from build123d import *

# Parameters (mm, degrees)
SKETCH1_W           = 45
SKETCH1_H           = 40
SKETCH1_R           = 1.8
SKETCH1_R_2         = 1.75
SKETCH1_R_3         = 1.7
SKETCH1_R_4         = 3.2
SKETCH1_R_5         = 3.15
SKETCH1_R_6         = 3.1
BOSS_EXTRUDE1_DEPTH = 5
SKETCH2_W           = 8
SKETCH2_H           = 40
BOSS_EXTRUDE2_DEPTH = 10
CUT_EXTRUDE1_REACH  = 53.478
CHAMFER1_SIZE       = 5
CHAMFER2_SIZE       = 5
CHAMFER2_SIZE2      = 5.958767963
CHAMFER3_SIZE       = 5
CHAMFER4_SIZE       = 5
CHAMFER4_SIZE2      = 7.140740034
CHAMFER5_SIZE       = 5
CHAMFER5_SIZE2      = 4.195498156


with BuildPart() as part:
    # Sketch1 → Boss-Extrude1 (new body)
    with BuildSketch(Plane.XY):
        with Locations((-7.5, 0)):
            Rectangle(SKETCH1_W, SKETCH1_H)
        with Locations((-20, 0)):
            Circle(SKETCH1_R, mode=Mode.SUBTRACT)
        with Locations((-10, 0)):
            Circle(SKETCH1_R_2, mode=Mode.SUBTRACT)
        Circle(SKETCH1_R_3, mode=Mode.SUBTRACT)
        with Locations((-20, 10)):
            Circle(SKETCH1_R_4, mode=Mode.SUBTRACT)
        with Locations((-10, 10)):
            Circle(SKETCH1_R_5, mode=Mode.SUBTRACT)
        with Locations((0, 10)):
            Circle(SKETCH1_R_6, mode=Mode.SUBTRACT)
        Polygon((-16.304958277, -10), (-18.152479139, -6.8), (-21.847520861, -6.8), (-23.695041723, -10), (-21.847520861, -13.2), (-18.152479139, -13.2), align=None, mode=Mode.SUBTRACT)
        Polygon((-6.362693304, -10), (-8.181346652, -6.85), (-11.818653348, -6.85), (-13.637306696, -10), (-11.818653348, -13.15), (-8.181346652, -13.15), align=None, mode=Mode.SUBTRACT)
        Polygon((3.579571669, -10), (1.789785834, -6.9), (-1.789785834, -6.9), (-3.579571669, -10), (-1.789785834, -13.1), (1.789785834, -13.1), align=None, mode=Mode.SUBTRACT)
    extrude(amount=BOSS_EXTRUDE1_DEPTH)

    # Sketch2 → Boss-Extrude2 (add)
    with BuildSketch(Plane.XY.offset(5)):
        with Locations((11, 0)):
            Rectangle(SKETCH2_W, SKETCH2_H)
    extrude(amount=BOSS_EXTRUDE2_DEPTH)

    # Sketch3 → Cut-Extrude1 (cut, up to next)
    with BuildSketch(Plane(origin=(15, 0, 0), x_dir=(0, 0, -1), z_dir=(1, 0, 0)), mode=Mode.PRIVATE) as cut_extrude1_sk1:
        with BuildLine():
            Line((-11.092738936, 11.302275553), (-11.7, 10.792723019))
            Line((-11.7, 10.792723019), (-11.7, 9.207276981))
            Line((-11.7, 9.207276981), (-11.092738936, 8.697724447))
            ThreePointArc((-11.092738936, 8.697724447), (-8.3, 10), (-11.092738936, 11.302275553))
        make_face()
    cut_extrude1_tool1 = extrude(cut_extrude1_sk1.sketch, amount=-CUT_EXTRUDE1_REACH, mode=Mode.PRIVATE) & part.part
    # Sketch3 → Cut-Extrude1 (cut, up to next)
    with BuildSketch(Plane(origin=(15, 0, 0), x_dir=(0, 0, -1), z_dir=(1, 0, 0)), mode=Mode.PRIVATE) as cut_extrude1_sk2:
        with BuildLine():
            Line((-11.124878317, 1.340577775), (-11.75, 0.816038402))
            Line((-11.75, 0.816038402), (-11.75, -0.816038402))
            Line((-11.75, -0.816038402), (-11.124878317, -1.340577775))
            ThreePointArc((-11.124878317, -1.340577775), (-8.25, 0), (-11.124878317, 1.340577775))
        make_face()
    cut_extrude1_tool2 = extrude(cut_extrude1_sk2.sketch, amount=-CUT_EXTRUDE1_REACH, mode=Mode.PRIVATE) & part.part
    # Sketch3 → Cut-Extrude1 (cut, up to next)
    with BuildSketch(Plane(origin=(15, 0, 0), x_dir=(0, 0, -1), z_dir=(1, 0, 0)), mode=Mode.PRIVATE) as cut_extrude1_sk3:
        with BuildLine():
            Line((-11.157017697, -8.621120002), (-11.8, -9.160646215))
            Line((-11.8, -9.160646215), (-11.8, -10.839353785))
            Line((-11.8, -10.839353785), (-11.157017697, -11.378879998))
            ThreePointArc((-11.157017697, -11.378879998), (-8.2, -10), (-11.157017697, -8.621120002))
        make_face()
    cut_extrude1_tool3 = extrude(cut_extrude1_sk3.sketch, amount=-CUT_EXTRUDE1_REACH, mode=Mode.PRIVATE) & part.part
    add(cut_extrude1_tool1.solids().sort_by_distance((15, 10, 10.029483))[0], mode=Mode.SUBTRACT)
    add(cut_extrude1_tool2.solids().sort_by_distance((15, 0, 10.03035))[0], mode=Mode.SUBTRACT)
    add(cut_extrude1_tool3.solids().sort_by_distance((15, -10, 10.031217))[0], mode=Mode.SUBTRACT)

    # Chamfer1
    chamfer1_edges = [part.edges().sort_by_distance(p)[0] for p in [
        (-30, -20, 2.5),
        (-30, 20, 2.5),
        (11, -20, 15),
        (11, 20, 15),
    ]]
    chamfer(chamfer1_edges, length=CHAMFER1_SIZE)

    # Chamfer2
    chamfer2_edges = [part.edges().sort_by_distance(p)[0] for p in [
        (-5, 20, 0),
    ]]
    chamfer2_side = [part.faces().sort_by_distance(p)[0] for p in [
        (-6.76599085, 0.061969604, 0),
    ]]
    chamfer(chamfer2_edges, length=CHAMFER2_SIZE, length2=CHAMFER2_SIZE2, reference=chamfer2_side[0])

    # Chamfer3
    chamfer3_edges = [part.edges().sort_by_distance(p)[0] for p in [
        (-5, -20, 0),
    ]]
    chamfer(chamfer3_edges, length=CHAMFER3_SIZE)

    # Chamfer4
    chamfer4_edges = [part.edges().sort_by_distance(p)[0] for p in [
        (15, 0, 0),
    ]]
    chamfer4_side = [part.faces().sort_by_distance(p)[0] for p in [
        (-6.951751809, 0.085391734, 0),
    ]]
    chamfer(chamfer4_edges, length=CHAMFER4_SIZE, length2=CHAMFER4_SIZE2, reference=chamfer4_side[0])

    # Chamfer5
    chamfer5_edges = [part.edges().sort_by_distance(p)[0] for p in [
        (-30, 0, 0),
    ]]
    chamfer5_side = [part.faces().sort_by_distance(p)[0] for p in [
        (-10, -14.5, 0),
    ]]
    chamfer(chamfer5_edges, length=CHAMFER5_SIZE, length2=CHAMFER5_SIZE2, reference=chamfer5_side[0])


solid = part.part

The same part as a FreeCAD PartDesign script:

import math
import FreeCAD as App
import Part
import Sketcher
from FreeCAD import Vector
Q = App.Units.Quantity


def edges_at(feature, points):
    """Names of the edges that pass closest to the given points."""
    edges = feature.Shape.Edges
    near = lambda p: min(range(len(edges)), key=lambda i: edges[i].distToShape(Part.Vertex(*p))[0])
    return sorted({f"Edge{near(p) + 1}" for p in points})

doc = App.newDocument("Part")
params = doc.addObject("Spreadsheet::Sheet", "Params")
for row, (alias, value) in enumerate([
    ("sketch1_diameter", "3.6 mm"),
    ("sketch1_diameter2", "6.4 mm"),
    ("sketch1_diameter3", "3.5 mm"),
    ("sketch1_diameter4", "3.4 mm"),
    ("sketch1_diameter5", "6.3 mm"),
    ("pad1_length", "5 mm"),
    ("sketch2_width", "8 mm"),
    ("sketch2_height", "40 mm"),
    ("pad2_length", "10 mm"),
    ("sketch3_radius", "1.7 mm"),
    ("sketch4_radius", "1.75 mm"),
    ("sketch5_radius", "1.8 mm"),
    ("chamfer_size", "5 mm"),
    ("chamfer2_size", "5 mm"),
    ("chamfer2_size2", "5.958768 mm"),
    ("chamfer3_size", "5 mm"),
    ("chamfer4_size", "5 mm"),
    ("chamfer4_size2", "7.14074 mm"),
    ("chamfer5_size", "5 mm"),
    ("chamfer5_size2", "4.195498 mm"),
], start=1):
    params.set(f"A{row}", alias)
    params.set(f"B{row}", "=" + value)
    params.setAlias(f"B{row}", alias)

body = doc.addObject("PartDesign::Body", "Body")

# Sketch on XY plane
sketch1 = doc.addObject("Sketcher::SketchObject", "Sketch")
body.addObject(sketch1)
sketch1.AttachmentSupport = (doc.XY_Plane, [""])
sketch1.MapMode = "FlatFace"
sketch1.addGeometry([
    Part.LineSegment(Vector(-30, 20, 0), Vector(-30, -20, 0)),  # 0
    Part.LineSegment(Vector(-30, -20, 0), Vector(15, -20, 0)),  # 1
    Part.LineSegment(Vector(15, -20, 0), Vector(15, 20, 0)),  # 2
    Part.LineSegment(Vector(15, 20, 0), Vector(-30, 20, 0)),  # 3
    Part.LineSegment(Vector(-18.2, -6.8, 0), Vector(-16.3, -10, 0)),  # 4
    Part.LineSegment(Vector(-16.3, -10, 0), Vector(-18.2, -13.2, 0)),  # 5
    Part.LineSegment(Vector(-18.2, -13.2, 0), Vector(-21.8, -13.2, 0)),  # 6
    Part.LineSegment(Vector(-21.8, -13.2, 0), Vector(-23.7, -10, 0)),  # 7
    Part.LineSegment(Vector(-23.7, -10, 0), Vector(-21.8, -6.8, 0)),  # 8
    Part.LineSegment(Vector(-21.8, -6.8, 0), Vector(-18.2, -6.8, 0)),  # 9
    Part.LineSegment(Vector(-8.2, -6.8, 0), Vector(-6.4, -10, 0)),  # 10
    Part.LineSegment(Vector(-6.4, -10, 0), Vector(-8.2, -13.2, 0)),  # 11
    Part.LineSegment(Vector(-8.2, -13.2, 0), Vector(-11.8, -13.2, 0)),  # 12
    Part.LineSegment(Vector(-11.8, -13.2, 0), Vector(-13.6, -10, 0)),  # 13
    Part.LineSegment(Vector(-13.6, -10, 0), Vector(-11.8, -6.8, 0)),  # 14
    Part.LineSegment(Vector(-11.8, -6.8, 0), Vector(-8.2, -6.8, 0)),  # 15
    Part.LineSegment(Vector(1.8, -6.9, 0), Vector(3.6, -10, 0)),  # 16
    Part.LineSegment(Vector(3.6, -10, 0), Vector(1.8, -13.1, 0)),  # 17
    Part.LineSegment(Vector(1.8, -13.1, 0), Vector(-1.8, -13.1, 0)),  # 18
    Part.LineSegment(Vector(-1.8, -13.1, 0), Vector(-3.6, -10, 0)),  # 19
    Part.LineSegment(Vector(-3.6, -10, 0), Vector(-1.8, -6.9, 0)),  # 20
    Part.LineSegment(Vector(-1.8, -6.9, 0), Vector(1.8, -6.9, 0)),  # 21
    Part.Circle(Vector(-20, 0, 0), Vector(0, 0, 1), 1.8),  # 22
    Part.Circle(Vector(-20, 10, 0), Vector(0, 0, 1), 3.2),  # 23
    Part.Circle(Vector(-10, 0, 0), Vector(0, 0, 1), 1.8),  # 24
    Part.Circle(Vector(0, 0, 0), Vector(0, 0, 1), 1.7),  # 25
    Part.Circle(Vector(-10, 10, 0), Vector(0, 0, 1), 3.1),  # 26
    Part.Circle(Vector(0, 10, 0), Vector(0, 0, 1), 3.1),  # 27
], False)
sketch1.addConstraint([
    Sketcher.Constraint("Coincident", 0, 2, 1, 1),
    Sketcher.Constraint("Coincident", 1, 2, 2, 1),
    Sketcher.Constraint("Coincident", 2, 2, 3, 1),
    Sketcher.Constraint("Coincident", 3, 2, 0, 1),
    Sketcher.Constraint("Coincident", 4, 2, 5, 1),
    Sketcher.Constraint("Coincident", 5, 2, 6, 1),
    Sketcher.Constraint("Coincident", 6, 2, 7, 1),
    Sketcher.Constraint("Coincident", 7, 2, 8, 1),
    Sketcher.Constraint("Coincident", 8, 2, 9, 1),
    Sketcher.Constraint("Coincident", 9, 2, 4, 1),
    Sketcher.Constraint("Coincident", 10, 2, 11, 1),
    Sketcher.Constraint("Coincident", 11, 2, 12, 1),
    Sketcher.Constraint("Coincident", 12, 2, 13, 1),
    Sketcher.Constraint("Coincident", 13, 2, 14, 1),
    Sketcher.Constraint("Coincident", 14, 2, 15, 1),
    Sketcher.Constraint("Coincident", 15, 2, 10, 1),
    Sketcher.Constraint("Coincident", 16, 2, 17, 1),
    Sketcher.Constraint("Coincident", 17, 2, 18, 1),
    Sketcher.Constraint("Coincident", 18, 2, 19, 1),
    Sketcher.Constraint("Coincident", 19, 2, 20, 1),
    Sketcher.Constraint("Coincident", 20, 2, 21, 1),
    Sketcher.Constraint("Coincident", 21, 2, 16, 1),
    Sketcher.Constraint("Vertical", 0),
    Sketcher.Constraint("Horizontal", 1),
    Sketcher.Constraint("Vertical", 2),
    Sketcher.Constraint("Horizontal", 3),
    Sketcher.Constraint("Horizontal", 6),
    Sketcher.Constraint("Horizontal", 9),
    Sketcher.Constraint("Horizontal", 12),
    Sketcher.Constraint("Horizontal", 15),
    Sketcher.Constraint("Horizontal", 18),
    Sketcher.Constraint("Horizontal", 21),
    Sketcher.Constraint("Coincident", 25, 3, -1, 1),
    Sketcher.Constraint("Symmetric", 16, 2, 19, 2, -2),
    Sketcher.Constraint("PointOnObject", 22, 3, -1),
    Sketcher.Constraint("PointOnObject", 24, 3, -1),
    Sketcher.Constraint("PointOnObject", 27, 3, -2),
    Sketcher.Constraint("Parallel", 4, 7),
    Sketcher.Constraint("Parallel", 5, 8),
    Sketcher.Constraint("Parallel", 7, 10),
    Sketcher.Constraint("Parallel", 8, 11),
    Sketcher.Constraint("Parallel", 10, 13),
    Sketcher.Constraint("Parallel", 11, 14),
    Sketcher.Constraint("Parallel", 13, 16),
    Sketcher.Constraint("Parallel", 14, 17),
    Sketcher.Constraint("Parallel", 16, 19),
    Sketcher.Constraint("Parallel", 17, 20),
    Sketcher.Constraint("Horizontal", 23, 3, 26, 3),
    Sketcher.Constraint("Horizontal", 26, 3, 27, 3),
    Sketcher.Constraint("Horizontal", 4, 2, 7, 2),
    Sketcher.Constraint("Horizontal", 7, 2, 10, 2),
    Sketcher.Constraint("Horizontal", 10, 2, 13, 2),
    Sketcher.Constraint("Horizontal", 13, 2, 16, 2),
    Sketcher.Constraint("Vertical", 22, 3, 23, 3),
    Sketcher.Constraint("Vertical", 24, 3, 26, 3),
    Sketcher.Constraint("Vertical", 6, 2, 8, 2),
    Sketcher.Constraint("Vertical", 5, 2, 9, 2),
    Sketcher.Constraint("Vertical", 12, 2, 14, 2),
    Sketcher.Constraint("Vertical", 18, 2, 20, 2),
    Sketcher.Constraint("Diameter", 22, Q("3.6 mm")),
    Sketcher.Constraint("Diameter", 23, Q("6.4 mm")),
    Sketcher.Constraint("Diameter", 24, Q("3.5 mm")),
    Sketcher.Constraint("Diameter", 25, Q("3.4 mm")),
    Sketcher.Constraint("Diameter", 26, Q("6.3 mm")),
    Sketcher.Constraint("Diameter", 27, Q("6.2 mm")),
    Sketcher.Constraint("DistanceX", 1, 1, 1, 2, Q("45 mm")),
    Sketcher.Constraint("DistanceY", 0, 2, 0, 1, Q("40 mm")),
    Sketcher.Constraint("Angle", 4, Q("-60 deg")),
    Sketcher.Constraint("DistanceX", 22, 3, -1, 1, Q("20 mm")),
    Sketcher.Constraint("DistanceY", -1, 1, 23, 3, Q("10 mm")),
    Sketcher.Constraint("DistanceX", 24, 3, -1, 1, Q("10 mm")),
    Sketcher.Constraint("DistanceX", 0, 2, -1, 1, Q("30 mm")),
    Sketcher.Constraint("DistanceY", 0, 2, -1, 1, Q("20 mm")),
    Sketcher.Constraint("DistanceY", 4, 2, -1, 1, Q("10 mm")),
    Sketcher.Constraint("DistanceY", 5, 2, -1, 1, Q("13.2 mm")),
    Sketcher.Constraint("DistanceY", 17, 2, -1, 1, Q("13.1 mm")),
    Sketcher.Constraint("DistanceY", 12, 2, 14, 2, Q("6.3 mm")),
    Sketcher.Constraint("DistanceX", 6, 2, 6, 1, Q("3.695042 mm")),
    Sketcher.Constraint("DistanceX", 18, 2, 18, 1, Q("3.579572 mm")),
    Sketcher.Constraint("DistanceX", 12, 2, 12, 1, Q("3.637307 mm")),
    Sketcher.Constraint("DistanceX", 4, 2, -1, 1, Q("16.304958 mm")),
    Sketcher.Constraint("DistanceX", 4, 2, 11, 2, Q("8.123612 mm")),
])
sketch1.setExpression("Constraints[59]", "Params.sketch1_diameter")
sketch1.setExpression("Constraints[60]", "Params.sketch1_diameter2")
sketch1.setExpression("Constraints[61]", "Params.sketch1_diameter3")
sketch1.setExpression("Constraints[62]", "Params.sketch1_diameter4")
sketch1.setExpression("Constraints[63]", "Params.sketch1_diameter5")
pad1 = doc.addObject("PartDesign::Pad", "Pad")
body.addObject(pad1)
pad1.Profile = sketch1
pad1.setExpression("Length", "Params.pad1_length")

# Sketch on XY plane
sketch2 = doc.addObject("Sketcher::SketchObject", "Sketch001")
body.addObject(sketch2)
sketch2.AttachmentSupport = (doc.XY_Plane, [""])
sketch2.MapMode = "FlatFace"
sketch2.AttachmentOffset = App.Placement(Vector(0, 0, 5), App.Rotation())
sketch2.addGeometry([
    Part.LineSegment(Vector(7, 20, 0), Vector(7, -20, 0)),
    Part.LineSegment(Vector(7, -20, 0), Vector(15, -20, 0)),
    Part.LineSegment(Vector(15, -20, 0), Vector(15, 20, 0)),
    Part.LineSegment(Vector(15, 20, 0), Vector(7, 20, 0)),
], False)
sketch2.addConstraint([
    Sketcher.Constraint("Coincident", 0, 2, 1, 1),
    Sketcher.Constraint("Coincident", 1, 2, 2, 1),
    Sketcher.Constraint("Coincident", 2, 2, 3, 1),
    Sketcher.Constraint("Coincident", 3, 2, 0, 1),
    Sketcher.Constraint("Vertical", 0),
    Sketcher.Constraint("Horizontal", 1),
    Sketcher.Constraint("Vertical", 2),
    Sketcher.Constraint("Horizontal", 3),
    Sketcher.Constraint("DistanceX", 1, 1, 1, 2, Q("8 mm")),
    Sketcher.Constraint("DistanceY", 0, 2, 0, 1, Q("40 mm")),
    Sketcher.Constraint("DistanceX", -1, 1, 0, 2, Q("7 mm")),
    Sketcher.Constraint("DistanceY", 0, 2, -1, 1, Q("20 mm")),
])
sketch2.setExpression("Constraints[8]", "Params.sketch2_width")
sketch2.setExpression("Constraints[9]", "Params.sketch2_height")
pad2 = doc.addObject("PartDesign::Pad", "Pad001")
body.addObject(pad2)
pad2.Profile = sketch2
pad2.setExpression("Length", "Params.pad2_length")

# Sketch on YZ plane
sketch3 = doc.addObject("Sketcher::SketchObject", "Sketch002")
body.addObject(sketch3)
sketch3.AttachmentSupport = (doc.YZ_Plane, [""])
sketch3.MapMode = "FlatFace"
sketch3.AttachmentOffset = App.Placement(Vector(0, 0, 15), App.Rotation())
sketch3.addGeometry([
    Part.LineSegment(Vector(11.3, 11.1, 0), Vector(10.8, 11.7, 0)),
    Part.LineSegment(Vector(10.8, 11.7, 0), Vector(9.2, 11.7, 0)),
    Part.LineSegment(Vector(9.2, 11.7, 0), Vector(8.7, 11.1, 0)),
    Part.ArcOfCircle(Part.Circle(Vector(10, 10, 0), Vector(0, 0, 1), 1.7), math.radians(140), math.radians(400)),
], False)
sketch3.addConstraint([
    Sketcher.Constraint("Coincident", 0, 2, 1, 1),
    Sketcher.Constraint("Coincident", 1, 2, 2, 1),
    Sketcher.Constraint("Tangent", 2, 2, 3, 1),
    Sketcher.Constraint("Tangent", 3, 2, 0, 1),
    Sketcher.Constraint("Horizontal", 1),
    Sketcher.Constraint("Horizontal", 2, 2, 3, 2),
    Sketcher.Constraint("Radius", 3, Q("1.7 mm")),
    Sketcher.Constraint("Angle", 0, Q("130 deg")),
    Sketcher.Constraint("DistanceX", -1, 1, 3, 3, Q("10 mm")),
    Sketcher.Constraint("DistanceY", -1, 1, 3, 3, Q("10 mm")),
    Sketcher.Constraint("DistanceY", -1, 1, 0, 2, Q("11.7 mm")),
])
sketch3.setExpression("Constraints[6]", "Params.sketch3_radius")
pocket1 = doc.addObject("PartDesign::Pocket", "Pocket")
body.addObject(pocket1)
pocket1.Profile = sketch3
pocket1.Type = "UpToFirst"

# Sketch on YZ plane
sketch4 = doc.addObject("Sketcher::SketchObject", "Sketch003")
body.addObject(sketch4)
sketch4.AttachmentSupport = (doc.YZ_Plane, [""])
sketch4.MapMode = "FlatFace"
sketch4.AttachmentOffset = App.Placement(Vector(0, 0, 15), App.Rotation())
sketch4.addGeometry([
    Part.LineSegment(Vector(1.3, 11.1, 0), Vector(0.8, 11.8, 0)),
    Part.LineSegment(Vector(0.8, 11.8, 0), Vector(-0.8, 11.8, 0)),
    Part.LineSegment(Vector(-0.8, 11.8, 0), Vector(-1.3, 11.1, 0)),
    Part.ArcOfCircle(Part.Circle(Vector(0, 10, 0), Vector(0, 0, 1), 1.8), math.radians(140), math.radians(400)),
], False)
sketch4.addConstraint([
    Sketcher.Constraint("Coincident", 0, 2, 1, 1),
    Sketcher.Constraint("Coincident", 1, 2, 2, 1),
    Sketcher.Constraint("Tangent", 2, 2, 3, 1),
    Sketcher.Constraint("Tangent", 3, 2, 0, 1),
    Sketcher.Constraint("Horizontal", 1),
    Sketcher.Constraint("Symmetric", 2, 2, 3, 2, -2),
    Sketcher.Constraint("Angle", 0, Q("130 deg")),
    Sketcher.Constraint("Radius", 3, Q("1.75 mm")),
    Sketcher.Constraint("DistanceY", -1, 1, 3, 3, Q("10 mm")),
    Sketcher.Constraint("DistanceY", -1, 1, 0, 2, Q("11.75 mm")),
])
sketch4.setExpression("Constraints[7]", "Params.sketch4_radius")
pocket2 = doc.addObject("PartDesign::Pocket", "Pocket001")
body.addObject(pocket2)
pocket2.Profile = sketch4
pocket2.Type = "UpToFirst"

# Sketch on YZ plane
sketch5 = doc.addObject("Sketcher::SketchObject", "Sketch004")
body.addObject(sketch5)
sketch5.AttachmentSupport = (doc.YZ_Plane, [""])
sketch5.MapMode = "FlatFace"
sketch5.AttachmentOffset = App.Placement(Vector(0, 0, 15), App.Rotation())
sketch5.addGeometry([
    Part.LineSegment(Vector(-8.6, 11.2, 0), Vector(-9.2, 11.8, 0)),
    Part.LineSegment(Vector(-9.2, 11.8, 0), Vector(-10.8, 11.8, 0)),
    Part.LineSegment(Vector(-10.8, 11.8, 0), Vector(-11.4, 11.2, 0)),
    Part.ArcOfCircle(Part.Circle(Vector(-10, 10, 0), Vector(0, 0, 1), 1.8), math.radians(140), math.radians(400)),
], False)
sketch5.addConstraint([
    Sketcher.Constraint("Coincident", 0, 2, 1, 1),
    Sketcher.Constraint("Coincident", 1, 2, 2, 1),
    Sketcher.Constraint("Tangent", 2, 2, 3, 1),
    Sketcher.Constraint("Tangent", 3, 2, 0, 1),
    Sketcher.Constraint("Horizontal", 1),
    Sketcher.Constraint("Horizontal", 2, 2, 3, 2),
    Sketcher.Constraint("Radius", 3, Q("1.8 mm")),
    Sketcher.Constraint("Angle", 0, Q("130 deg")),
    Sketcher.Constraint("DistanceX", 3, 3, -1, 1, Q("10 mm")),
    Sketcher.Constraint("DistanceY", -1, 1, 3, 3, Q("10 mm")),
    Sketcher.Constraint("DistanceY", -1, 1, 0, 2, Q("11.8 mm")),
])
sketch5.setExpression("Constraints[6]", "Params.sketch5_radius")
pocket3 = doc.addObject("PartDesign::Pocket", "Pocket002")
body.addObject(pocket3)
pocket3.Profile = sketch5
pocket3.Type = "UpToFirst"
doc.recompute()

chamfer = doc.addObject("PartDesign::Chamfer", "Chamfer")
body.addObject(chamfer)
chamfer.Base = (pocket3, edges_at(pocket3, [
    (-30, -20, 2.5),
    (-30, 20, 2.5),
    (11, -20, 15),
    (11, 20, 15),
]))
chamfer.setExpression("Size", "Params.chamfer_size")
doc.recompute()

chamfer2 = doc.addObject("PartDesign::Chamfer", "Chamfer001")
body.addObject(chamfer2)
chamfer2.Base = (chamfer, edges_at(chamfer, [(-5, 20, 0)]))
chamfer2.ChamferType = "Two distances"
chamfer2.setExpression("Size", "Params.chamfer2_size")
chamfer2.setExpression("Size2", "Params.chamfer2_size2")
doc.recompute()

chamfer3 = doc.addObject("PartDesign::Chamfer", "Chamfer002")
body.addObject(chamfer3)
chamfer3.Base = (chamfer2, edges_at(chamfer2, [(-5, -20, 0)]))
chamfer3.setExpression("Size", "Params.chamfer3_size")
doc.recompute()

chamfer4 = doc.addObject("PartDesign::Chamfer", "Chamfer003")
body.addObject(chamfer4)
chamfer4.Base = (chamfer3, edges_at(chamfer3, [(15, 0, 0)]))
chamfer4.ChamferType = "Two distances"
chamfer4.setExpression("Size", "Params.chamfer4_size")
chamfer4.setExpression("Size2", "Params.chamfer4_size2")
doc.recompute()

chamfer5 = doc.addObject("PartDesign::Chamfer", "Chamfer004")
body.addObject(chamfer5)
chamfer5.Base = (chamfer4, edges_at(chamfer4, [(-30, 0, 0)]))
chamfer5.ChamferType = "Two distances"
chamfer5.setExpression("Size", "Params.chamfer5_size")
chamfer5.setExpression("Size2", "Params.chamfer5_size2")

doc.recompute()
